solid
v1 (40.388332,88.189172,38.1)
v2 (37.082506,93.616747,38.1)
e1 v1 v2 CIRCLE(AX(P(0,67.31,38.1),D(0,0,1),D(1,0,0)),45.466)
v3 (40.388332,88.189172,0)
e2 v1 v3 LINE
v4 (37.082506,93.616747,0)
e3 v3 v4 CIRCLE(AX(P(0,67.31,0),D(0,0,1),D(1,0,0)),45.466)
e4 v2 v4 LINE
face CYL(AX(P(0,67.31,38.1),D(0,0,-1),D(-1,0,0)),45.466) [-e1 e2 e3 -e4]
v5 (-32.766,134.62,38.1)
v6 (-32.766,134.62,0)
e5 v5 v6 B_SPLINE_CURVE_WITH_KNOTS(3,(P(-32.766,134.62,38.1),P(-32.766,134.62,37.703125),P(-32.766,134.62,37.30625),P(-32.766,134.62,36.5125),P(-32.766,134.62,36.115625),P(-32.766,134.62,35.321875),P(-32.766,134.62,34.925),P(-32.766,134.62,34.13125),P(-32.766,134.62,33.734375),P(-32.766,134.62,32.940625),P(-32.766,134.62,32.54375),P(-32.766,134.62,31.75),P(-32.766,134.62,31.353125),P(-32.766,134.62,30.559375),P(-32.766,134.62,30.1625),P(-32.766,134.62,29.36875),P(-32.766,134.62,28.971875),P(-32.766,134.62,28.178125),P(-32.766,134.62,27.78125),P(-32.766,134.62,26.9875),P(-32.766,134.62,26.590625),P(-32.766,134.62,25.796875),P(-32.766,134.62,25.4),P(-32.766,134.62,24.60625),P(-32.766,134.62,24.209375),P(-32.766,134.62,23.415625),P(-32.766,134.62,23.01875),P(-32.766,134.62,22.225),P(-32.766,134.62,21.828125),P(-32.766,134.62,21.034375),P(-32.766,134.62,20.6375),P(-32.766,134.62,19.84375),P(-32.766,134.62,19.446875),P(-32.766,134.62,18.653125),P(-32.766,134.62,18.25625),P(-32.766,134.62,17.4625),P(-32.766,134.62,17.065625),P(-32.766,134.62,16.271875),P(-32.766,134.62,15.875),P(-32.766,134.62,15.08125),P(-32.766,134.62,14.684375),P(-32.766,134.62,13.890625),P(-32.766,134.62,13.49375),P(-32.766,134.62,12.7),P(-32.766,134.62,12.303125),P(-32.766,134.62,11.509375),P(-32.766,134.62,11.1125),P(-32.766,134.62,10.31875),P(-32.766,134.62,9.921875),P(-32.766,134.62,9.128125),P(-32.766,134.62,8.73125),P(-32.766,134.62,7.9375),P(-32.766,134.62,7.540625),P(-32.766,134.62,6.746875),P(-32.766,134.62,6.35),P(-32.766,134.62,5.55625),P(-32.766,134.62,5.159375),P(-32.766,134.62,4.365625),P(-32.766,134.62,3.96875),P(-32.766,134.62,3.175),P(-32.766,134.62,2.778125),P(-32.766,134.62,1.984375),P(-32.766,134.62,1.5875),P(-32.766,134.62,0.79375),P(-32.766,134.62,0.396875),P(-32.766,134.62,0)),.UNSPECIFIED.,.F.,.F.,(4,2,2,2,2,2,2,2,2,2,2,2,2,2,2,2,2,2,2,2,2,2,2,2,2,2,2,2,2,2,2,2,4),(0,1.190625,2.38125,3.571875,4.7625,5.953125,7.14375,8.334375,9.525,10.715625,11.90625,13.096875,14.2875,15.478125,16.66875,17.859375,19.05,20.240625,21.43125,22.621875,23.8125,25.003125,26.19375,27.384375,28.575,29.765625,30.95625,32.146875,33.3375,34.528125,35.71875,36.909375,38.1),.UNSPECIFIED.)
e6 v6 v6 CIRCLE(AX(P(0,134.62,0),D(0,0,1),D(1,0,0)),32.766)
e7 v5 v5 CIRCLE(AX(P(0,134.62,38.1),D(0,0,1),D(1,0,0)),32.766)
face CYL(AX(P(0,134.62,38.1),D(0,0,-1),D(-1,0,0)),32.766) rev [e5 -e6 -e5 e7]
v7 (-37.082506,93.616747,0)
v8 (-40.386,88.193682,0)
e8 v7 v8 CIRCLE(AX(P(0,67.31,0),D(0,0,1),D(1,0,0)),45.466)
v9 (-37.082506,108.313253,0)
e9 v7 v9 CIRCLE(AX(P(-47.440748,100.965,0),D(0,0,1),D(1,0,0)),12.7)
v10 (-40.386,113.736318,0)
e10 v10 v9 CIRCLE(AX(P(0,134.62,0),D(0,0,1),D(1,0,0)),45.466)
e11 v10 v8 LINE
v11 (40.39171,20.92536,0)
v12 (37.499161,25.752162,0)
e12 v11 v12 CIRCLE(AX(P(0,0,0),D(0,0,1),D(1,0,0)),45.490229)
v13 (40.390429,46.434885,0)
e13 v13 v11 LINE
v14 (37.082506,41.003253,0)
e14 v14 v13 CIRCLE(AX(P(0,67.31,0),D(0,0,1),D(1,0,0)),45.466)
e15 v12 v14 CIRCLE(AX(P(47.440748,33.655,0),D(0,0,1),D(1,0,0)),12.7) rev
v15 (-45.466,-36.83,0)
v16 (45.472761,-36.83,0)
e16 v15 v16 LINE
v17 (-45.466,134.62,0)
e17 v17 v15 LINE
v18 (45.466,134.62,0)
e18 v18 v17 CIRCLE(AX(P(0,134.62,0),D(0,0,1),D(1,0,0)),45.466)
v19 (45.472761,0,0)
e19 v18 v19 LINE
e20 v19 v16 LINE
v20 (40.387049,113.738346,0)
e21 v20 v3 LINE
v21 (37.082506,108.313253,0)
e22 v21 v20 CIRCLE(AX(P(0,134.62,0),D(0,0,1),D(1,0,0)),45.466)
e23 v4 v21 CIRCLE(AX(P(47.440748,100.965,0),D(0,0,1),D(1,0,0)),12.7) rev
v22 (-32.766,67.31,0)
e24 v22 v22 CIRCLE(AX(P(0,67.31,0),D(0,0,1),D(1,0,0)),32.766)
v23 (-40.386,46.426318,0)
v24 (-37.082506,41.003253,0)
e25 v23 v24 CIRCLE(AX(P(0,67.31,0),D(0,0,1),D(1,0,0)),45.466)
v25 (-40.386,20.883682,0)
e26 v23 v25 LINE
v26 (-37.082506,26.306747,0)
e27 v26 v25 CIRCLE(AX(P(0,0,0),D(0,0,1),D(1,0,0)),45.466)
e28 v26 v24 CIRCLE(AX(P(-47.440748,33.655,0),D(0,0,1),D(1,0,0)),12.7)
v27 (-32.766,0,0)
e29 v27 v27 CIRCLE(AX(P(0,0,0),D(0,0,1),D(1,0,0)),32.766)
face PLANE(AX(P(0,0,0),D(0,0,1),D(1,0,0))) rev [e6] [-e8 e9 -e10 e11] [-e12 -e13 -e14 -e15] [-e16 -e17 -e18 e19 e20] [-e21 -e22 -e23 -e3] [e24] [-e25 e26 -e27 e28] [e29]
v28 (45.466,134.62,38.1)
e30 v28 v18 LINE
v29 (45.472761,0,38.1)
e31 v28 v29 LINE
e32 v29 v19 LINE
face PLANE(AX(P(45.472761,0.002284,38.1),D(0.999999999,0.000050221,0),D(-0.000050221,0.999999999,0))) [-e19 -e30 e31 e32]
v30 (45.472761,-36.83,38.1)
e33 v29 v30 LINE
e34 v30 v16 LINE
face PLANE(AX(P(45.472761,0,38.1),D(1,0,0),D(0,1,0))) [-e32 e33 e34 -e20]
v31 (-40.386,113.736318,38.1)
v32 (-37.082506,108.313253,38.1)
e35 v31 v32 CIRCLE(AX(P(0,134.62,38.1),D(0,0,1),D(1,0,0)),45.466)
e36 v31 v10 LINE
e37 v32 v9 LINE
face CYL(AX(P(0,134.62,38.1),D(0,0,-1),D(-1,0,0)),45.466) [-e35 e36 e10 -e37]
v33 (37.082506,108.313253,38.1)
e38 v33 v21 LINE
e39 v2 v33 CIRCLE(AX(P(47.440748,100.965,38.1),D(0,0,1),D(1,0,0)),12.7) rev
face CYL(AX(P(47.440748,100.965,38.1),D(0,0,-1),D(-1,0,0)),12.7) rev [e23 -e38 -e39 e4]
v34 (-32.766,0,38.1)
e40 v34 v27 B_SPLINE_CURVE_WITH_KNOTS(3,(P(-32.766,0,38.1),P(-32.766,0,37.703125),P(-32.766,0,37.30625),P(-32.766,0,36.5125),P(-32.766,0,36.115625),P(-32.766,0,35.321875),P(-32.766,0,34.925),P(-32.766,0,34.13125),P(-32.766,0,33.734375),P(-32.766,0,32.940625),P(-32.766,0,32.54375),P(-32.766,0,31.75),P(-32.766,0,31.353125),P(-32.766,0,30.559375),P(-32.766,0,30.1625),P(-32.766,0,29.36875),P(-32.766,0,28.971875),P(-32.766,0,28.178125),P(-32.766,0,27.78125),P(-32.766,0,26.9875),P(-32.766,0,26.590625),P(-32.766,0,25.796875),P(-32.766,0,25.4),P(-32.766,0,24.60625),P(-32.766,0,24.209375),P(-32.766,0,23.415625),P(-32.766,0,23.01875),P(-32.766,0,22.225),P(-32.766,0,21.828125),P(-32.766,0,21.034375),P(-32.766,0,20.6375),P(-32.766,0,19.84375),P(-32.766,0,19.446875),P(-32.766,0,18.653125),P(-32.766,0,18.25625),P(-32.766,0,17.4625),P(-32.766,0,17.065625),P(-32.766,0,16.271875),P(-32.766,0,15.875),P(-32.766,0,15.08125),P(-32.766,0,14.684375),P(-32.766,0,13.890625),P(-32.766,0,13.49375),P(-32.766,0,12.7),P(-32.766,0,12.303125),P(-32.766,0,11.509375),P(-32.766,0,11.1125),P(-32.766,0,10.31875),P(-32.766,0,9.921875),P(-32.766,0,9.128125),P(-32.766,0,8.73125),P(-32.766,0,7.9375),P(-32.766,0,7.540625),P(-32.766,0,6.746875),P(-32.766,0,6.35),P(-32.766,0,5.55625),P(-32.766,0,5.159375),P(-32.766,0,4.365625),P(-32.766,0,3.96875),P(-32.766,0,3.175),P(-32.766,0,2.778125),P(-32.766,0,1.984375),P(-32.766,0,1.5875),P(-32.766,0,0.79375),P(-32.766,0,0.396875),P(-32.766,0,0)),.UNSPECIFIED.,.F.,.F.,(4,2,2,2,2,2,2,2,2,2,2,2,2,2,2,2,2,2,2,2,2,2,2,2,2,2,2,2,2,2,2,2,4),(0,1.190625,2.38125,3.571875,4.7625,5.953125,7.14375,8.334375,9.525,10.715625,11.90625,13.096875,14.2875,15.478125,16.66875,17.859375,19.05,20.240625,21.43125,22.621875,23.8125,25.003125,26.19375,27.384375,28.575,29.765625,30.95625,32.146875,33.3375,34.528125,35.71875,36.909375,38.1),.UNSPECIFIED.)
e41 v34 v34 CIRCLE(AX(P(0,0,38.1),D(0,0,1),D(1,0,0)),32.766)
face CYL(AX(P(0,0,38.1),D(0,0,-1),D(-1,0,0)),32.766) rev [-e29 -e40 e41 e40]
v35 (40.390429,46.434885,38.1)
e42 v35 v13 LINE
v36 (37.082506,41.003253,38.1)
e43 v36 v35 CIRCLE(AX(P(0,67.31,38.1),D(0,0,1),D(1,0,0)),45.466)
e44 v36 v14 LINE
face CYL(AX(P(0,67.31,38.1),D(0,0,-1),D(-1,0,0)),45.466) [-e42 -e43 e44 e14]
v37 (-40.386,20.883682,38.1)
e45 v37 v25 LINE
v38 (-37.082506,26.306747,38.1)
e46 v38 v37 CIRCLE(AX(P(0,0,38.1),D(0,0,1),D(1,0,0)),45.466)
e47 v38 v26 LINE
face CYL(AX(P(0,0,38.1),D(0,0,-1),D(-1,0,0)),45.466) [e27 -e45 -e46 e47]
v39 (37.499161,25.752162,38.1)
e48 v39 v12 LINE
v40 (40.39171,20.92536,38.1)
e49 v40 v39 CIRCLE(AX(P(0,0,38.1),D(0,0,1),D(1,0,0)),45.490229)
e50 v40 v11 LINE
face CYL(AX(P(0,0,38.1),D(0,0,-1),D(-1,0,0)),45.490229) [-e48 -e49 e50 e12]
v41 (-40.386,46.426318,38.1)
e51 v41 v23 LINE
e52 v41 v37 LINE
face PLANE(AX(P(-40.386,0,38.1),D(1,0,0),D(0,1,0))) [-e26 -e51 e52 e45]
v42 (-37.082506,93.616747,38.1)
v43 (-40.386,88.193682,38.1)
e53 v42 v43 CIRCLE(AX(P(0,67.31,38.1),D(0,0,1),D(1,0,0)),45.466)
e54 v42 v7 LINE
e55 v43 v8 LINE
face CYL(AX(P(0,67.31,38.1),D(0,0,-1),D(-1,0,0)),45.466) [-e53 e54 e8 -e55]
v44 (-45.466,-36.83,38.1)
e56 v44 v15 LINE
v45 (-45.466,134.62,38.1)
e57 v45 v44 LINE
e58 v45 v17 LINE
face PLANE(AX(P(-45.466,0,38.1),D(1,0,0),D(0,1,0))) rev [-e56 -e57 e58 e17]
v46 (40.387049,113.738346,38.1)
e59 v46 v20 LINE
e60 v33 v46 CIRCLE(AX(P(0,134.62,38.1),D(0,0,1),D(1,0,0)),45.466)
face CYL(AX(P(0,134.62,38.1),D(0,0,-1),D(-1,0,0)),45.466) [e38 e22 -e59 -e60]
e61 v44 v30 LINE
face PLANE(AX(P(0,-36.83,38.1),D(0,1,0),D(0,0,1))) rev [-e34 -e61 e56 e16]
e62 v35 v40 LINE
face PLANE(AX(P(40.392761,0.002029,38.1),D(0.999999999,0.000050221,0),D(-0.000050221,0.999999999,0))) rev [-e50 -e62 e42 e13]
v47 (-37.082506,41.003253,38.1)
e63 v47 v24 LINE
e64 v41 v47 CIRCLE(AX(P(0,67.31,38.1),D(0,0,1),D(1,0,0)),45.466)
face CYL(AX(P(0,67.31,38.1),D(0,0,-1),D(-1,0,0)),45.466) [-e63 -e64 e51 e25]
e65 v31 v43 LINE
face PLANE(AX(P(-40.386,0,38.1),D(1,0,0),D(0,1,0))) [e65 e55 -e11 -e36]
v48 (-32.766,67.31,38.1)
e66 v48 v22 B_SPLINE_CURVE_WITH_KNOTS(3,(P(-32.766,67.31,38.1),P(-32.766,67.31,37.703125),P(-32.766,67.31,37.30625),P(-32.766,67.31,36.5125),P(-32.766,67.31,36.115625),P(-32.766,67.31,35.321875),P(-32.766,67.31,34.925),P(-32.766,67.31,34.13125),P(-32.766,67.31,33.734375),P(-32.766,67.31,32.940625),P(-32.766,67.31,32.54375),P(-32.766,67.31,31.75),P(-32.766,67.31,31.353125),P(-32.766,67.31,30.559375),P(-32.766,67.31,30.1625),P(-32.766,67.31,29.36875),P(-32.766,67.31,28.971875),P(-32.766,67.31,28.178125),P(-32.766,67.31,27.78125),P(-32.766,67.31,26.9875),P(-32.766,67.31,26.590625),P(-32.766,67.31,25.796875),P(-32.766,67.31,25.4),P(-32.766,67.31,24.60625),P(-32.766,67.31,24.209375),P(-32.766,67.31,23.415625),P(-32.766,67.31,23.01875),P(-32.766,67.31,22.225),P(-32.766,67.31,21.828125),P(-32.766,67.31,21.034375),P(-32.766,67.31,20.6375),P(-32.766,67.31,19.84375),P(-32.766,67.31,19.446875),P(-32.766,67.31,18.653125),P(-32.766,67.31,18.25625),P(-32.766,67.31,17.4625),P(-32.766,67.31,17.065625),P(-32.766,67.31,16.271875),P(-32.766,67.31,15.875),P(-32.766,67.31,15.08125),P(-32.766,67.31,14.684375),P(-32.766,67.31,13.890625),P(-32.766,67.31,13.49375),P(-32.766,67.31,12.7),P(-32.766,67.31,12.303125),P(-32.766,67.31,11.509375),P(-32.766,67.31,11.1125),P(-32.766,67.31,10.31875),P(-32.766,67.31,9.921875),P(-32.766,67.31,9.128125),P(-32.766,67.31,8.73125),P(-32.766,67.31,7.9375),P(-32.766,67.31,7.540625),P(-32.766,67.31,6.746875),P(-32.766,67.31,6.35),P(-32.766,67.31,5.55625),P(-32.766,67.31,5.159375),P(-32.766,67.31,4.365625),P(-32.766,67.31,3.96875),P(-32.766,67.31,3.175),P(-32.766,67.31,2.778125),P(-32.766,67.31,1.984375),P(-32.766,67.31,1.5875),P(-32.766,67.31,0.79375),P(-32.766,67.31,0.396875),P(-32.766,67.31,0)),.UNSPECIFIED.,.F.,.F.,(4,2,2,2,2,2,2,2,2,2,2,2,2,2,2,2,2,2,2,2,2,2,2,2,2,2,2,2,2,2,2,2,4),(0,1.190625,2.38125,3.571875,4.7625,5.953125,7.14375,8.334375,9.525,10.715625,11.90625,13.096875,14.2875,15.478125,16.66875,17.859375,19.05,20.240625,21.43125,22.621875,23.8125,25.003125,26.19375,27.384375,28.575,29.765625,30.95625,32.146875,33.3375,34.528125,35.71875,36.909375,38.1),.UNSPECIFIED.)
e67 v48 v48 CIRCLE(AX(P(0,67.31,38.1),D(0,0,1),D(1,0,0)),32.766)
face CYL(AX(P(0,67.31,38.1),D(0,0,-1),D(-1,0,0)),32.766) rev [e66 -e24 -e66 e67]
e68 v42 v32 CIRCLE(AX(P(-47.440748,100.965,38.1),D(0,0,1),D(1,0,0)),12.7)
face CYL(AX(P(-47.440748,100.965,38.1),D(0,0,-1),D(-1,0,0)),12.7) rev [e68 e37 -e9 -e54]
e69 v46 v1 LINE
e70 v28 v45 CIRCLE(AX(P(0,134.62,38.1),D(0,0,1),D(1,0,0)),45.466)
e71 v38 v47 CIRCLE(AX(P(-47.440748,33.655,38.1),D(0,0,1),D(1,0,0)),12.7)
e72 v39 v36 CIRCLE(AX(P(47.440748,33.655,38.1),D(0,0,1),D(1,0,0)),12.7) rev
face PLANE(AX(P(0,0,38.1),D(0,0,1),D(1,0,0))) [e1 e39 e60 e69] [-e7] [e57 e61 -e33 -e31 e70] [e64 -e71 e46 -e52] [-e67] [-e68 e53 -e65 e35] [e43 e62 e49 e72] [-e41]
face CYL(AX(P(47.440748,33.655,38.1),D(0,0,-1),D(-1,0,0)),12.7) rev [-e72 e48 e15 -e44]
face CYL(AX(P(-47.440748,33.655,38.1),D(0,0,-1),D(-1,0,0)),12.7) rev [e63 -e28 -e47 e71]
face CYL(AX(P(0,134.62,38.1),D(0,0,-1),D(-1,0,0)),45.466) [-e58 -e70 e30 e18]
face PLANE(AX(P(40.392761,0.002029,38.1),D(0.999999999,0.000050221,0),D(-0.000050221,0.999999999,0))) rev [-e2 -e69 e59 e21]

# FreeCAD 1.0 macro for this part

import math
import FreeCAD as App
import Part
import Sketcher
Q = App.Units.Quantity

doc = App.newDocument("Part")
body = doc.addObject("PartDesign::Body", "Body")

# Sketch on XY plane
sketch1 = body.newObject("Sketcher::SketchObject", "Sketch")
sketch1.AttachmentSupport = (doc.getObject("XY_Plane"), [""])
sketch1.MapMode = "FlatFace"
sketch1.addGeometry([
    Part.ArcOfCircle(Part.Circle(App.Vector(0, 135, 0), App.Vector(0, 0, 1), 45), math.radians(0), math.radians(180)),  # 0
    Part.LineSegment(App.Vector(-45, 135, 0), App.Vector(-45, -37, 0)),  # 1
    Part.LineSegment(App.Vector(-45, -37, 0), App.Vector(45, -37, 0)),  # 2
    Part.LineSegment(App.Vector(45, -37, 0), App.Vector(45, 0, 0)),  # 3
    Part.LineSegment(App.Vector(45, 0, 0), App.Vector(45, 135, 0)),  # 4
    Part.Circle(App.Vector(0, 0, 0), App.Vector(0, 0, 1), 33),  # 5
    Part.ArcOfCircle(Part.Circle(App.Vector(0, 0, 0), App.Vector(0, 0, 1), 45), math.radians(144.65), math.radians(152.66)),  # 6
    Part.LineSegment(App.Vector(-40, 21, 0), App.Vector(-40, 46, 0)),  # 7
    Part.ArcOfCircle(Part.Circle(App.Vector(0, 67, 0), App.Vector(0, 0, 1), 45), math.radians(-152.66), math.radians(-144.65)),  # 8
    Part.ArcOfCircle(Part.Circle(App.Vector(-47, 34, 0), App.Vector(0, 0, 1), 13), math.radians(-35), math.radians(35)),  # 9
    Part.ArcOfCircle(Part.Circle(App.Vector(47, 34, 0), App.Vector(0, 0, 1), 13), math.radians(145), math.radians(218)),  # 10
    Part.ArcOfCircle(Part.Circle(App.Vector(0, 67, 0), App.Vector(0, 0, 1), 45), math.radians(-35.35), math.radians(-27.33)),  # 11
    Part.LineSegment(App.Vector(40, 46, 0), App.Vector(40, 21, 0)),  # 12
    Part.ArcOfCircle(Part.Circle(App.Vector(0, 0, 0), App.Vector(0, 0, 1), 45), math.radians(27.39), math.radians(34.48)),  # 13
    Part.ArcOfCircle(Part.Circle(App.Vector(0, 67, 0), App.Vector(0, 0, 1), 45), math.radians(144.65), math.radians(152.66)),  # 14
    Part.LineSegment(App.Vector(-40, 88, 0), App.Vector(-40, 114, 0)),  # 15
    Part.ArcOfCircle(Part.Circle(App.Vector(0, 135, 0), App.Vector(0, 0, 1), 45), math.radians(-152.66), math.radians(-144.65)),  # 16
    Part.ArcOfCircle(Part.Circle(App.Vector(-47, 101, 0), App.Vector(0, 0, 1), 13), math.radians(-35), math.radians(35)),  # 17
    Part.Circle(App.Vector(0, 67, 0), App.Vector(0, 0, 1), 33),  # 18
    Part.Circle(App.Vector(0, 135, 0), App.Vector(0, 0, 1), 33),  # 19
    Part.ArcOfCircle(Part.Circle(App.Vector(47, 101, 0), App.Vector(0, 0, 1), 13), math.radians(145), math.radians(215)),  # 20
    Part.ArcOfCircle(Part.Circle(App.Vector(0, 135, 0), App.Vector(0, 0, 1), 45), math.radians(-35.35), math.radians(-27.34)),  # 21
    Part.LineSegment(App.Vector(40, 114, 0), App.Vector(40, 88, 0)),  # 22
    Part.ArcOfCircle(Part.Circle(App.Vector(0, 67, 0), App.Vector(0, 0, 1), 45), math.radians(27.34), math.radians(35.35)),  # 23
], False)
sketch1.addConstraint([
    Sketcher.Constraint("Tangent", 0, 2, 1, 1),
    Sketcher.Constraint("Coincident", 1, 2, 2, 1),
    Sketcher.Constraint("Coincident", 2, 2, 3, 1),
    Sketcher.Constraint("Coincident", 3, 2, 4, 1),
    Sketcher.Constraint("Coincident", 4, 2, 0, 1),
    Sketcher.Constraint("Coincident", 6, 2, 7, 1),
    Sketcher.Constraint("Coincident", 7, 2, 8, 1),
    Sketcher.Constraint("Tangent", 8, 2, 9, 2),
    Sketcher.Constraint("Tangent", 9, 1, 6, 1),
    Sketcher.Constraint("Tangent", 10, 1, 11, 1),
    Sketcher.Constraint("Coincident", 11, 2, 12, 1),
    Sketcher.Constraint("Coincident", 12, 2, 13, 1),
    Sketcher.Constraint("Coincident", 13, 2, 10, 2),
    Sketcher.Constraint("Coincident", 14, 2, 15, 1),
    Sketcher.Constraint("Coincident", 15, 2, 16, 1),
    Sketcher.Constraint("Tangent", 16, 2, 17, 2),
    Sketcher.Constraint("Tangent", 17, 1, 14, 1),
    Sketcher.Constraint("Tangent", 20, 1, 21, 1),
    Sketcher.Constraint("Coincident", 21, 2, 22, 1),
    Sketcher.Constraint("Coincident", 22, 2, 23, 1),
    Sketcher.Constraint("Tangent", 23, 2, 20, 2),
    Sketcher.Constraint("Vertical", 1),
    Sketcher.Constraint("Horizontal", 2),
    Sketcher.Constraint("Vertical", 3),
    Sketcher.Constraint("Vertical", 7),
    Sketcher.Constraint("Vertical", 15),
    Sketcher.Constraint("Coincident", 5, 3, -1, 1),
    Sketcher.Constraint("Coincident", 6, 3, -1, 1),
    Sketcher.Constraint("Coincident", 13, 3, -1, 1),
    Sketcher.Constraint("Coincident", 11, 3, 8, 3),
    Sketcher.Constraint("Coincident", 14, 3, 8, 3),
    Sketcher.Constraint("Coincident", 16, 3, 0, 3),
    Sketcher.Constraint("Coincident", 18, 3, 8, 3),
    Sketcher.Constraint("Coincident", 19, 3, 0, 3),
    Sketcher.Constraint("Coincident", 21, 3, 0, 3),
    Sketcher.Constraint("Coincident", 23, 3, 8, 3),
    Sketcher.Constraint("Equal", 0, 6),
    Sketcher.Constraint("Equal", 6, 8),
    Sketcher.Constraint("Equal", 9, 10),
    Sketcher.Constraint("Equal", 8, 11),
    Sketcher.Constraint("Equal", 11, 14),
    Sketcher.Constraint("Equal", 14, 16),
    Sketcher.Constraint("Equal", 10, 17),
    Sketcher.Constraint("Equal", 5, 18),
    Sketcher.Constraint("Equal", 18, 19),
    Sketcher.Constraint("Equal", 17, 20),
    Sketcher.Constraint("Equal", 16, 21),
    Sketcher.Constraint("Equal", 21, 23),
    Sketcher.Constraint("Symmetric", 9, 3, 10, 3, -2),
    Sketcher.Constraint("Symmetric", 0, 2, 4, 2, -2),
    Sketcher.Constraint("PointOnObject", 3, 2, -1),
    Sketcher.Constraint("Parallel", 4, 12),
    Sketcher.Constraint("Parallel", 12, 22),
    Sketcher.Constraint("Vertical", 9, 3, 17, 3),
    Sketcher.Constraint("Vertical", 7, 2, 14, 2),
    Sketcher.Constraint("Radius", 9, Q("0.5 in")),
    Sketcher.Constraint("Diameter", 5, Q("2.58 in")),
    Sketcher.Constraint("Radius", 0, Q("1.79 in")),
    Sketcher.Constraint("Distance", 4, Q("5.3 in")),
    Sketcher.Constraint("DistanceY", 1, 2, 1, 1, Q("6.75 in")),
    Sketcher.Constraint("DistanceX", 1, 2, 6, 2, Q("0.2 in")),
    Sketcher.Constraint("Radius", 13, 45.490228),
    Sketcher.Constraint("DistanceX", 20, 1, 21, 2, Q("0.1301001 in")),
    Sketcher.Constraint("DistanceX", 2, 1, 2, 2, 90.938761),
    Sketcher.Constraint("DistanceY", 12, 2, 13, 2, 4.826802),
])
pad1 = body.newObject("PartDesign::Pad", "Pad")
pad1.Profile = sketch1
pad1.Length = Q("1.5 in")

doc.recompute()
